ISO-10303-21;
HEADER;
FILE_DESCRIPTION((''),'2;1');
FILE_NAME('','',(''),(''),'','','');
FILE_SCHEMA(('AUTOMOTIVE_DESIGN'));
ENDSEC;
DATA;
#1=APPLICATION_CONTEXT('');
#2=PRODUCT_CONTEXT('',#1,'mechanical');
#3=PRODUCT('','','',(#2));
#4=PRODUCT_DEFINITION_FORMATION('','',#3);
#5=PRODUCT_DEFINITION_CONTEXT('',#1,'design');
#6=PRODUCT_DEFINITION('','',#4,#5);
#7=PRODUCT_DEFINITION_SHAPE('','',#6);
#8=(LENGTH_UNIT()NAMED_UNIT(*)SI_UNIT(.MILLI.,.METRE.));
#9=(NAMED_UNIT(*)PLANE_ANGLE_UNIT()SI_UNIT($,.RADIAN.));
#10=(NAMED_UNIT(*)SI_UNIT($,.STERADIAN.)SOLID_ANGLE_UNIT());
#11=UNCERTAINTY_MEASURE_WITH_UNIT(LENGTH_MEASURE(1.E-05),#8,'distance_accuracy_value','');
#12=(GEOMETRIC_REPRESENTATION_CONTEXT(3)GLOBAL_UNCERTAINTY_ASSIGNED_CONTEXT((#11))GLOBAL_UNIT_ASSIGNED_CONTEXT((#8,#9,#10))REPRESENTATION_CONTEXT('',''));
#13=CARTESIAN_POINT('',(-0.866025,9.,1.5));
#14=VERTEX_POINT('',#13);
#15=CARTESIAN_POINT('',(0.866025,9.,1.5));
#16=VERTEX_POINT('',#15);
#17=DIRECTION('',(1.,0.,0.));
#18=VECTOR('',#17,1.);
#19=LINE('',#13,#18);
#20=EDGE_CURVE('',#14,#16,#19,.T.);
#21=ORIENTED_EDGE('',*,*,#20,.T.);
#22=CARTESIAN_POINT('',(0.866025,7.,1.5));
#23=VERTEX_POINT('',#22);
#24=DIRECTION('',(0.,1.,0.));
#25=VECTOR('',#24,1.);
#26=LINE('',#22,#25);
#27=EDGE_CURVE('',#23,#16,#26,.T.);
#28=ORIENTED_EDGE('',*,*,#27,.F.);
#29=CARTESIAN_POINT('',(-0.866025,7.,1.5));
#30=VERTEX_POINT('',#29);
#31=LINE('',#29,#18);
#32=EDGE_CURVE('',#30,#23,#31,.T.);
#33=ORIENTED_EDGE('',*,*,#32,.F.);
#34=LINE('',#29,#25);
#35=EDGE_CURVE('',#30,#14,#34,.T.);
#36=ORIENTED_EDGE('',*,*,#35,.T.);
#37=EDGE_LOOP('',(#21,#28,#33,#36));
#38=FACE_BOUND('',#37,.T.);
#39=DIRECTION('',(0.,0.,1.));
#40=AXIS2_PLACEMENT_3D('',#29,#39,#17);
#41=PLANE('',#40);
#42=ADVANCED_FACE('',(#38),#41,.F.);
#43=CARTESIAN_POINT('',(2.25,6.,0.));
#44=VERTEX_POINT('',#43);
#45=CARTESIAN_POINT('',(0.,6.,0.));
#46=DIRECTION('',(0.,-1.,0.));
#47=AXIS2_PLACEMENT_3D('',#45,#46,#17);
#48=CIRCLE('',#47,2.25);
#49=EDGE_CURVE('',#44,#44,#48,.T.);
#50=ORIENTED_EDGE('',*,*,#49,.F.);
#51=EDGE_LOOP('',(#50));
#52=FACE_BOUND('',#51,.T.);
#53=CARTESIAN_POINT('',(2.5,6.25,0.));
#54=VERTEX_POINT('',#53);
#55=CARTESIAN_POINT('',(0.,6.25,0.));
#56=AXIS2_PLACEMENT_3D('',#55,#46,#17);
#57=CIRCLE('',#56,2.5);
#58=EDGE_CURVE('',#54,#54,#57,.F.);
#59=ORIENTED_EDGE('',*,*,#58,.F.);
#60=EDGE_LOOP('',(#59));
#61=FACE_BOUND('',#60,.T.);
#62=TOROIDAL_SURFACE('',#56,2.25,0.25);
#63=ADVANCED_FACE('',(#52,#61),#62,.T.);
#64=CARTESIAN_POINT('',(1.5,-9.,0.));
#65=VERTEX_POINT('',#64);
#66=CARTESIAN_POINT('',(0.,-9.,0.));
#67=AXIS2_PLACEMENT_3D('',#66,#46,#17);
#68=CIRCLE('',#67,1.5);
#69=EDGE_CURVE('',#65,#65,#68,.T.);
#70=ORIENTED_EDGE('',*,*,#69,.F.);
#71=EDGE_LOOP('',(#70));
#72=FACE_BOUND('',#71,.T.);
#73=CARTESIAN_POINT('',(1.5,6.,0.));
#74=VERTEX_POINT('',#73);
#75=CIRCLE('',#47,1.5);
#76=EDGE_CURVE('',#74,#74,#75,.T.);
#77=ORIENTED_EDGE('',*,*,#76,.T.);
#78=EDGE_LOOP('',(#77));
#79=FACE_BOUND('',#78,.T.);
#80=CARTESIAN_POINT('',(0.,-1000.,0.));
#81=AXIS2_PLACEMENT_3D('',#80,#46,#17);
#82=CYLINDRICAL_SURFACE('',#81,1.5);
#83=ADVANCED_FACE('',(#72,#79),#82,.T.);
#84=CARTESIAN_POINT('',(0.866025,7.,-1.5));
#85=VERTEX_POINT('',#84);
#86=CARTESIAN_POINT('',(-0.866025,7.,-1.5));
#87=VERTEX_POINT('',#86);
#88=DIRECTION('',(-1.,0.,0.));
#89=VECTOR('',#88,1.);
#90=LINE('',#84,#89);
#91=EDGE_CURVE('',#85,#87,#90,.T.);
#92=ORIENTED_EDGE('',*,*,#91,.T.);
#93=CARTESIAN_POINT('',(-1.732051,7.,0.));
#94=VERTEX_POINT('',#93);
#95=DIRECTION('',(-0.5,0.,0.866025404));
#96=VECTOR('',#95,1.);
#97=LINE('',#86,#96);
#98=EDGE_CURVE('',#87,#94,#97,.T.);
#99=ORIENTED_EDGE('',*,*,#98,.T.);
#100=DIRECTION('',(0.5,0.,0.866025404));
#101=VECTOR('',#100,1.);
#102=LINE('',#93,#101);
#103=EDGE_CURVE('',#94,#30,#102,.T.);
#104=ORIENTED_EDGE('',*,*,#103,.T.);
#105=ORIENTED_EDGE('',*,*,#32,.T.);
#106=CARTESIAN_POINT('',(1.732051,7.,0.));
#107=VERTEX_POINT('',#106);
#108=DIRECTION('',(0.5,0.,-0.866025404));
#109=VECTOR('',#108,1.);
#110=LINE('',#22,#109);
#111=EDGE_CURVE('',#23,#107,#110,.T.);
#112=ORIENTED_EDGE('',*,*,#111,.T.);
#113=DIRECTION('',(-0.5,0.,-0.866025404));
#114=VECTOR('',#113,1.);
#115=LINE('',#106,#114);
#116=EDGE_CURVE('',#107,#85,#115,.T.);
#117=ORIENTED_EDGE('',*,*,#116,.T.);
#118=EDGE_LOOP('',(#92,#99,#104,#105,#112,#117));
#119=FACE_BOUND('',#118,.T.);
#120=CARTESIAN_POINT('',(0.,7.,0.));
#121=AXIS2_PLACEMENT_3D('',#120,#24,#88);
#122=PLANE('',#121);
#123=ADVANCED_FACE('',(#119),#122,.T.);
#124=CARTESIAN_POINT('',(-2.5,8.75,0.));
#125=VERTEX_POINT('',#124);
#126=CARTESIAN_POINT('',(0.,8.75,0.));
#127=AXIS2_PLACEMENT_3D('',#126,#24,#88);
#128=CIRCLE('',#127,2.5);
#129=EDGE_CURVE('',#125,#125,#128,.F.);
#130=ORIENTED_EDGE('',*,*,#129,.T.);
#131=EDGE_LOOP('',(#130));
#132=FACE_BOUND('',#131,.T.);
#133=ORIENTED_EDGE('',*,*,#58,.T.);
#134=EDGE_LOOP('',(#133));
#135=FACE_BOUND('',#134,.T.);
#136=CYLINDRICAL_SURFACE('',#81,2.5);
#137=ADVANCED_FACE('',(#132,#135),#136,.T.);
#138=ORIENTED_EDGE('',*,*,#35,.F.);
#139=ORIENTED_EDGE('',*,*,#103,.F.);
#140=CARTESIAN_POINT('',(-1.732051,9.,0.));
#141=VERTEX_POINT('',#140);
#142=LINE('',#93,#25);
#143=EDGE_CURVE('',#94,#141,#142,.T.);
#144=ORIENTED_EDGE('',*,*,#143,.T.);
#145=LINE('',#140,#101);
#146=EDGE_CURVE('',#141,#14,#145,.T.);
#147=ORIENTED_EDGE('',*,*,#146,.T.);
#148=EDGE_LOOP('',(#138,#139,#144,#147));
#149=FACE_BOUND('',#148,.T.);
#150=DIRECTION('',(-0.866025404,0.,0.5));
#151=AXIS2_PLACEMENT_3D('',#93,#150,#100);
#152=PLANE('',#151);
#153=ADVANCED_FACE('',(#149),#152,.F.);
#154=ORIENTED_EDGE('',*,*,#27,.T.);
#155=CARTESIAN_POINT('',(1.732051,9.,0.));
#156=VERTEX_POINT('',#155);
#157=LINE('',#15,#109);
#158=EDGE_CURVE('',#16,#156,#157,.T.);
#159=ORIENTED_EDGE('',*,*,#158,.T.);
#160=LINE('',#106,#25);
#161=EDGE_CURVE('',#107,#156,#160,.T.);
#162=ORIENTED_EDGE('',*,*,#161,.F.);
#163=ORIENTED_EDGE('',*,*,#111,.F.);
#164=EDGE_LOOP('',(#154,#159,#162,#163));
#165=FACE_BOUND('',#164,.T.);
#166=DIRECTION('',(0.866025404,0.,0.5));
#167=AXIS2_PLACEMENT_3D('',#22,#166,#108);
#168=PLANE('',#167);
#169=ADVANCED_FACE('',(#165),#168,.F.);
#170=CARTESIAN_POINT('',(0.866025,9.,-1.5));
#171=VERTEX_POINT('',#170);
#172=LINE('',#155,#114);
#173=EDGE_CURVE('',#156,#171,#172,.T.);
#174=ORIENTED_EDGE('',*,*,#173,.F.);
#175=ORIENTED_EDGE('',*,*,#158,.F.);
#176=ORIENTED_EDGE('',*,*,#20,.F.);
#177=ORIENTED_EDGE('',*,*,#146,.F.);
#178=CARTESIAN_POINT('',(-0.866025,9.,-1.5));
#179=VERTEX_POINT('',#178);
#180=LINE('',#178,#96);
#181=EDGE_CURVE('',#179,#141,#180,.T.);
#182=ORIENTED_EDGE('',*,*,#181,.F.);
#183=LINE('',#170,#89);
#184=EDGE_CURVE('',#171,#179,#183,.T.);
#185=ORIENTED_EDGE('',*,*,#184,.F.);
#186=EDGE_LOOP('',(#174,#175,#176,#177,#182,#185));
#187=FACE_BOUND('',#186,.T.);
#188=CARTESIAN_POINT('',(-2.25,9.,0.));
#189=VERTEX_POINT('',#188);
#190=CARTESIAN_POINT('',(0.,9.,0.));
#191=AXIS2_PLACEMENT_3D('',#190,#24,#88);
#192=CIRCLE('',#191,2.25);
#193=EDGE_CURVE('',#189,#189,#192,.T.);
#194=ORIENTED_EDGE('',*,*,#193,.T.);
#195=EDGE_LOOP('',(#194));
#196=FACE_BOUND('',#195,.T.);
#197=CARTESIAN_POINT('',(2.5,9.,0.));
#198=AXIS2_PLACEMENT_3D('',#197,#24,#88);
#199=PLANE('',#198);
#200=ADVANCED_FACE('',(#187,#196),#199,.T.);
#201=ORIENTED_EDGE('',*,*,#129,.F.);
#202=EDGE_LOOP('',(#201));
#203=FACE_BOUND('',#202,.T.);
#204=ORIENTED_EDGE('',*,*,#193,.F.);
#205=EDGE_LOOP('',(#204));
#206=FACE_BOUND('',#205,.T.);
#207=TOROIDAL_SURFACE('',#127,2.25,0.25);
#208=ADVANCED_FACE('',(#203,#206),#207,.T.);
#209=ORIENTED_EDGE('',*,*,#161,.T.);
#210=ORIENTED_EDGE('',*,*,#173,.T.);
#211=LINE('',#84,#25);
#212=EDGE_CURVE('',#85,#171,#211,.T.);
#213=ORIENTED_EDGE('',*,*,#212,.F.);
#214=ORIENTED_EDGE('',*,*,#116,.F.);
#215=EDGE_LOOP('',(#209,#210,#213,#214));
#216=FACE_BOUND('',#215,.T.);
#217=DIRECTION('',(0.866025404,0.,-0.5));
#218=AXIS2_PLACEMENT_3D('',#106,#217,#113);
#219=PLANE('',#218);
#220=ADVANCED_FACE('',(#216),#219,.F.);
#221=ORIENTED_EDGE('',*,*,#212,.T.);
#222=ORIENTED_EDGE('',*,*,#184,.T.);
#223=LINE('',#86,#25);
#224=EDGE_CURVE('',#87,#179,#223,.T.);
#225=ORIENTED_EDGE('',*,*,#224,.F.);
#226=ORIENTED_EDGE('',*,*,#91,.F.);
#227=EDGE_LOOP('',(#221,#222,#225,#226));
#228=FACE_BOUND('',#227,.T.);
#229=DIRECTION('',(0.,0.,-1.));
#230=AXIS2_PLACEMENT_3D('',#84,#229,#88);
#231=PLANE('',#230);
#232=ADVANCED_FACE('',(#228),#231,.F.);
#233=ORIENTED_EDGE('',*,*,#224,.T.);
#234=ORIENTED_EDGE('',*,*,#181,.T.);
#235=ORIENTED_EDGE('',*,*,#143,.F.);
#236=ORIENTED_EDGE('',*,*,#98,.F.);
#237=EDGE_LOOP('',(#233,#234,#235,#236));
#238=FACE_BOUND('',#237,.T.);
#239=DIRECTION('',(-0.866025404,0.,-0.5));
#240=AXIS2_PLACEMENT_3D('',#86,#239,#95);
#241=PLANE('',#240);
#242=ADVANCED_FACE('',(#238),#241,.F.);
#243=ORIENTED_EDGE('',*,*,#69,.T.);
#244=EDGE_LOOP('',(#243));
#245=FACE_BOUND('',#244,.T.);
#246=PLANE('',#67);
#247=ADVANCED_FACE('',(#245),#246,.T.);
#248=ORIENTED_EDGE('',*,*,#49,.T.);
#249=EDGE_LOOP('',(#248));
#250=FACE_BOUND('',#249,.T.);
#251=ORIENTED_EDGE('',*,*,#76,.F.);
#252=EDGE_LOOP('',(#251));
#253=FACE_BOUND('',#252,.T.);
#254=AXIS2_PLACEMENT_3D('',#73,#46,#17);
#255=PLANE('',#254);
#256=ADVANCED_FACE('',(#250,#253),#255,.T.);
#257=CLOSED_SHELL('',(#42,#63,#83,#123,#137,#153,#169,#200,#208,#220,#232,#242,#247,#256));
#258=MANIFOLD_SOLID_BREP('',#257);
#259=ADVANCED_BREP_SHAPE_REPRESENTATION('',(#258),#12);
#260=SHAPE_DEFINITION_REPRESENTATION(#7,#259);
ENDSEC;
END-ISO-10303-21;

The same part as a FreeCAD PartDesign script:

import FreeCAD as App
import Part
import Sketcher

V = App.Vector
Q = App.Units.Quantity


def edges_at(feature, points):
    """Names of the edges that pass closest to the given points."""
    edges = feature.Shape.Edges
    near = lambda p: min(range(len(edges)), key=lambda i: edges[i].distToShape(Part.Vertex(*p))[0])
    return sorted({f"Edge{near(p) + 1}" for p in points})

doc = App.newDocument("Part")
body = doc.addObject("PartDesign::Body", "Body")

# Sketch on XY plane
sketch1 = body.newObject("Sketcher::SketchObject", "Sketch")
sketch1.AttachmentSupport = (doc.getObject("XY_Plane"), [""])
sketch1.MapMode = "FlatFace"
sketch1.addGeometry(Part.LineSegment(V(0, -9, 0), V(1.5, -9, 0)), False)
sketch1.addGeometry(Part.LineSegment(V(1.5, -9, 0), V(1.5, 6, 0)), False)
sketch1.addGeometry(Part.LineSegment(V(1.5, 6, 0), V(2.5, 6, 0)), False)
sketch1.addGeometry(Part.LineSegment(V(2.5, 6, 0), V(2.5, 9, 0)), False)
sketch1.addGeometry(Part.LineSegment(V(2.5, 9, 0), V(0, 9, 0)), False)
sketch1.addGeometry(Part.LineSegment(V(0, 9, 0), V(0, -9, 0)), False)
sketch1.addConstraint(Sketcher.Constraint("Coincident", 0, 2, 1, 1))
sketch1.addConstraint(Sketcher.Constraint("Coincident", 1, 2, 2, 1))
sketch1.addConstraint(Sketcher.Constraint("Coincident", 2, 2, 3, 1))
sketch1.addConstraint(Sketcher.Constraint("Coincident", 3, 2, 4, 1))
sketch1.addConstraint(Sketcher.Constraint("Coincident", 4, 2, 5, 1))
sketch1.addConstraint(Sketcher.Constraint("Coincident", 5, 2, 0, 1))
sketch1.addConstraint(Sketcher.Constraint("Horizontal", 0))
sketch1.addConstraint(Sketcher.Constraint("Vertical", 1))
sketch1.addConstraint(Sketcher.Constraint("Horizontal", 2))
sketch1.addConstraint(Sketcher.Constraint("Vertical", 3))
sketch1.addConstraint(Sketcher.Constraint("Horizontal", 4))
sketch1.addConstraint(Sketcher.Constraint("Vertical", 5))
sketch1.addConstraint(Sketcher.Constraint("Symmetric", 4, 2, 5, 2, -1, 1))
sketch1.addConstraint(Sketcher.Constraint("DistanceX", 2, 1, 2, 2, Q("1 mm")))
sketch1.addConstraint(Sketcher.Constraint("DistanceY", 1, 1, 1, 2, Q("15 mm")))
sketch1.addConstraint(Sketcher.Constraint("DistanceY", 3, 1, 3, 2, Q("3 mm")))
sketch1.addConstraint(Sketcher.Constraint("DistanceX", 0, 1, 0, 2, Q("1.5 mm")))
revolution = body.newObject("PartDesign::Revolution", "Revolution")
revolution.Profile = sketch1
revolution.ReferenceAxis = (sketch1, ["V_Axis"])
revolution.Angle = 360

# Sketch on XZ plane
sketch2 = body.newObject("Sketcher::SketchObject", "Sketch001")
sketch2.AttachmentSupport = (doc.getObject("XZ_Plane"), [""])
sketch2.MapMode = "FlatFace"
sketch2.AttachmentOffset = App.Placement(V(0, 0, -9), App.Rotation())
sketch2.addGeometry(Part.LineSegment(V(0.9, -1.5, 0), V(-0.9, -1.5, 0)), False)
sketch2.addGeometry(Part.LineSegment(V(-0.9, -1.5, 0), V(-1.7, 0, 0)), False)
sketch2.addGeometry(Part.LineSegment(V(-1.7, 0, 0), V(-0.9, 1.5, 0)), False)
sketch2.addGeometry(Part.LineSegment(V(-0.9, 1.5, 0), V(0.9, 1.5, 0)), False)
sketch2.addGeometry(Part.LineSegment(V(0.9, 1.5, 0), V(1.7, 0, 0)), False)
sketch2.addGeometry(Part.LineSegment(V(1.7, 0, 0), V(0.9, -1.5, 0)), False)
sketch2.addConstraint(Sketcher.Constraint("Coincident", 0, 2, 1, 1))
sketch2.addConstraint(Sketcher.Constraint("Coincident", 1, 2, 2, 1))
sketch2.addConstraint(Sketcher.Constraint("Coincident", 2, 2, 3, 1))
sketch2.addConstraint(Sketcher.Constraint("Coincident", 3, 2, 4, 1))
sketch2.addConstraint(Sketcher.Constraint("Coincident", 4, 2, 5, 1))
sketch2.addConstraint(Sketcher.Constraint("Coincident", 5, 2, 0, 1))
sketch2.addConstraint(Sketcher.Constraint("Horizontal", 0))
sketch2.addConstraint(Sketcher.Constraint("Horizontal", 3))
sketch2.addConstraint(Sketcher.Constraint("Symmetric", 0, 2, 3, 2, -1, 1))
sketch2.addConstraint(Sketcher.Constraint("Symmetric", 1, 2, 4, 2, -1, 1))
sketch2.addConstraint(Sketcher.Constraint("PointOnObject", 1, 2, -1))
sketch2.addConstraint(Sketcher.Constraint("Parallel", 2, 5))
sketch2.addConstraint(Sketcher.Constraint("Vertical", 0, 2, 2, 2))
sketch2.addConstraint(Sketcher.Constraint("Angle", 1, Q("120 deg")))
sketch2.addConstraint(Sketcher.Constraint("DistanceY", 0, 2, 2, 2, Q("3 mm")))
sketch2.addConstraint(Sketcher.Constraint("DistanceX", 0, 2, 0, 1, Q("1.732051 mm")))
pocket1 = body.newObject("PartDesign::Pocket", "Pocket")
pocket1.Profile = sketch2
pocket1.Length = 2
pocket1.Reversed = True
doc.recompute()

fillet = body.newObject("PartDesign::Fillet", "Fillet")
fillet.Base = (pocket1, edges_at(pocket1, [(-2.5, 9, 0), (-2.5, 6, 0)]))
fillet.Radius = 0.25

doc.recompute()
